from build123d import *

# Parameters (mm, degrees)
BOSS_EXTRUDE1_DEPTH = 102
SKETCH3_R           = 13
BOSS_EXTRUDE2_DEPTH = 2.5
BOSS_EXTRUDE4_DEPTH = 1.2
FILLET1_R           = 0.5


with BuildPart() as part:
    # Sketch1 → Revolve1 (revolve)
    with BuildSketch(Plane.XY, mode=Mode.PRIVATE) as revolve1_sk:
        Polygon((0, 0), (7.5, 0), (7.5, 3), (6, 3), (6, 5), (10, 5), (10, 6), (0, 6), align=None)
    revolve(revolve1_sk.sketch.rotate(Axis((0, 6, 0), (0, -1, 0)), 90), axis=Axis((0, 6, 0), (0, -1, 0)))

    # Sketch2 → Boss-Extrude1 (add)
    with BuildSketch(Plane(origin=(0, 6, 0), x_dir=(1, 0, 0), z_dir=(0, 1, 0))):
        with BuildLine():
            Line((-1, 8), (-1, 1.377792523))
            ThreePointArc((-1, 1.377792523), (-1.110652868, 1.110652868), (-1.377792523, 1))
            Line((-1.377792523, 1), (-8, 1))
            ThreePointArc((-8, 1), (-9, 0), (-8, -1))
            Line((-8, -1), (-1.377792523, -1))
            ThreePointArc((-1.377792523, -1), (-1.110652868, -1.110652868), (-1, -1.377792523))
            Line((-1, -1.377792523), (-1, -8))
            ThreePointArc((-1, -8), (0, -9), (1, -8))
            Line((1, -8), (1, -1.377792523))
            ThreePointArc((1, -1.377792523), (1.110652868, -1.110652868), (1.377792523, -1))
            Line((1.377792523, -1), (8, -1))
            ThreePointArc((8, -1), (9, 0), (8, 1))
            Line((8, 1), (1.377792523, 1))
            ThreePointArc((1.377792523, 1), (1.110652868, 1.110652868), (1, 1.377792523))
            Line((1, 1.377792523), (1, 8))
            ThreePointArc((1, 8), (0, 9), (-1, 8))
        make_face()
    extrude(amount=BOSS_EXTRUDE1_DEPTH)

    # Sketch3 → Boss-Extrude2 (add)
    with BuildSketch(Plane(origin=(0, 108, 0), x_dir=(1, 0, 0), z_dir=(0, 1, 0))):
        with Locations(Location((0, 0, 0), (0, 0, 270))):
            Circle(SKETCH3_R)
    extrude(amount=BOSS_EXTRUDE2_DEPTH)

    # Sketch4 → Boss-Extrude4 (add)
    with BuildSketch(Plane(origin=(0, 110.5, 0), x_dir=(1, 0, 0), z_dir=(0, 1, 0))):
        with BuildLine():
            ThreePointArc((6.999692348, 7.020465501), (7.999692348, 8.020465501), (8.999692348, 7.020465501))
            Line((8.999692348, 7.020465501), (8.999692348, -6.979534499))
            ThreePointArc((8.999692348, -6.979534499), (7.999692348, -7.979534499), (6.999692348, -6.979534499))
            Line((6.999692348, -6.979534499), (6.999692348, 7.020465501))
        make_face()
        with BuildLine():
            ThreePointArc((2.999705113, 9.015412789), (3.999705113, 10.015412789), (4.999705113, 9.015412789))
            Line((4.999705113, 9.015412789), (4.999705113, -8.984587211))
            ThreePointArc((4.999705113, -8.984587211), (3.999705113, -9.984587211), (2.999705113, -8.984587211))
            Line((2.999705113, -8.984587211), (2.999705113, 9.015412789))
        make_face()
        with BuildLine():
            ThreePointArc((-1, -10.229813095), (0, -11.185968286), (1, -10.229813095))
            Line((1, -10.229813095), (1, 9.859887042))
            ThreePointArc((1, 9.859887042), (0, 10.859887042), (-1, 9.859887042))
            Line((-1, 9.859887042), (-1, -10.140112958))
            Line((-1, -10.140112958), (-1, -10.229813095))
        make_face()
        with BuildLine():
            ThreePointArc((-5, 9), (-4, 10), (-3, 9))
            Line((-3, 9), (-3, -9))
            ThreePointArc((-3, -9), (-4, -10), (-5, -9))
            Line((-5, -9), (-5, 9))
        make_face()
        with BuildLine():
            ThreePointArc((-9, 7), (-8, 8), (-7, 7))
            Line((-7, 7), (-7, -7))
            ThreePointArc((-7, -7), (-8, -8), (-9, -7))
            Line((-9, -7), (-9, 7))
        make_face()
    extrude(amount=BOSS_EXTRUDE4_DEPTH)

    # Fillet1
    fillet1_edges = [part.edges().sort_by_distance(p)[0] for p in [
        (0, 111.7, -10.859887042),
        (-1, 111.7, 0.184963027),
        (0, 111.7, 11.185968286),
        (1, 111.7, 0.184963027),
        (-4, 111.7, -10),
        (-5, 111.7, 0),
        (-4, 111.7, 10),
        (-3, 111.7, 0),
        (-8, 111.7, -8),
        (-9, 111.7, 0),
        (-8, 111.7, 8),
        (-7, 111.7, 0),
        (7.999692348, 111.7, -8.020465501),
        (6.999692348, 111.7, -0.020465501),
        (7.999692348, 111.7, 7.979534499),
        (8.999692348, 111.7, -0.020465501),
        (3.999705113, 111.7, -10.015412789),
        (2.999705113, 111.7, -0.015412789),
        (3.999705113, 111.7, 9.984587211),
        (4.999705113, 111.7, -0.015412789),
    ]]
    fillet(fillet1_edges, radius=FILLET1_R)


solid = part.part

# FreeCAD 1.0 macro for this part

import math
import FreeCAD as App
import Part
import Sketcher
from FreeCAD import Vector


def edges_at(feature, points):
    """Names of the edges that pass closest to the given points."""
    edges = feature.Shape.Edges
    near = lambda p: min(range(len(edges)), key=lambda i: edges[i].distToShape(Part.Vertex(*p))[0])
    return sorted({f"Edge{near(p) + 1}" for p in points})

doc = App.newDocument("Part")
body = doc.addObject("PartDesign::Body", "Body")

sketch1 = body.newObject("Sketcher::SketchObject", "Sketch")
sketch1.AttachmentSupport = (doc.getObject("XY_Plane"), [""])
sketch1.MapMode = "FlatFace"
sketch1.addGeometry([
    Part.LineSegment(Vector(0, 0, 0), Vector(7.5, 0, 0)),
    Part.LineSegment(Vector(7.5, 0, 0), Vector(7.5, 3, 0)),
    Part.LineSegment(Vector(7.5, 3, 0), Vector(6, 3, 0)),
    Part.LineSegment(Vector(6, 3, 0), Vector(6, 5, 0)),
    Part.LineSegment(Vector(6, 5, 0), Vector(10, 5, 0)),
    Part.LineSegment(Vector(10, 5, 0), Vector(10, 6, 0)),
    Part.LineSegment(Vector(10, 6, 0), Vector(0, 6, 0)),
    Part.LineSegment(Vector(0, 6, 0), Vector(0, 0, 0)),
], False)
sketch1.addConstraint([
    Sketcher.Constraint("Coincident", 0, 2, 1, 1),
    Sketcher.Constraint("Coincident", 1, 2, 2, 1),
    Sketcher.Constraint("Coincident", 2, 2, 3, 1),
    Sketcher.Constraint("Coincident", 3, 2, 4, 1),
    Sketcher.Constraint("Coincident", 4, 2, 5, 1),
    Sketcher.Constraint("Coincident", 5, 2, 6, 1),
    Sketcher.Constraint("Coincident", 6, 2, 7, 1),
    Sketcher.Constraint("Coincident", 7, 2, 0, 1),
    Sketcher.Constraint("Horizontal", 0),
    Sketcher.Constraint("Vertical", 1),
    Sketcher.Constraint("Horizontal", 2),
    Sketcher.Constraint("Vertical", 3),
    Sketcher.Constraint("Horizontal", 4),
    Sketcher.Constraint("Vertical", 5),
    Sketcher.Constraint("Horizontal", 6),
    Sketcher.Constraint("Vertical", 7),
    Sketcher.Constraint("Coincident", 7, 2, -1, 1),
    Sketcher.Constraint("DistanceX", 4, 1, 4, 2, 4.0),
    Sketcher.Constraint("DistanceX", 6, 2, 6, 1, 10.0),
    Sketcher.Constraint("DistanceY", 1, 1, 1, 2, 3.0),
    Sketcher.Constraint("DistanceY", 3, 1, 3, 2, 2.0),
    Sketcher.Constraint("DistanceY", 5, 1, 5, 2, 1.0),
    Sketcher.Constraint("DistanceX", 0, 1, 0, 2, 7.5),
])
revolution = body.newObject("PartDesign::Revolution", "Revolution")
revolution.Profile = sketch1
revolution.ReferenceAxis = (sketch1, ["V_Axis"])
revolution.Angle = 360

sketch2 = body.newObject("Sketcher::SketchObject", "Sketch001")
sketch2.AttachmentSupport = (doc.getObject("XZ_Plane"), [""])
sketch2.MapMode = "FlatFace"
sketch2.AttachmentOffset = App.Placement(Vector(0, 0, -6), App.Rotation())
sketch2.addGeometry([
    Part.LineSegment(Vector(-1, -8, 0), Vector(-1, -1.377793, 0)),
    Part.ArcOfCircle(Part.Circle(Vector(-1.377793, -1.377793, 0), Vector(0, 0, 1), 0.377793), math.radians(0), math.radians(90)),
    Part.LineSegment(Vector(-1.377793, -1, 0), Vector(-8, -1, 0)),
    Part.ArcOfCircle(Part.Circle(Vector(-8, 0, 0), Vector(0, 0, 1), 1), math.radians(90), math.radians(270)),
    Part.LineSegment(Vector(-8, 1, 0), Vector(-1.377793, 1, 0)),
    Part.ArcOfCircle(Part.Circle(Vector(-1.377793, 1.377793, 0), Vector(0, 0, 1), 0.377793), math.radians(-90), math.radians(0)),
    Part.LineSegment(Vector(-1, 1.377793, 0), Vector(-1, 8, 0)),
    Part.ArcOfCircle(Part.Circle(Vector(0, 8, 0), Vector(0, 0, 1), 1), math.radians(0), math.radians(180)),
    Part.LineSegment(Vector(1, 8, 0), Vector(1, 1.377793, 0)),
    Part.ArcOfCircle(Part.Circle(Vector(1.377793, 1.377793, 0), Vector(0, 0, 1), 0.377793), math.radians(180), math.radians(270)),
    Part.LineSegment(Vector(1.377793, 1, 0), Vector(8, 1, 0)),
    Part.ArcOfCircle(Part.Circle(Vector(8, 0, 0), Vector(0, 0, 1), 1), math.radians(-90), math.radians(90)),
    Part.LineSegment(Vector(8, -1, 0), Vector(1.377793, -1, 0)),
    Part.ArcOfCircle(Part.Circle(Vector(1.377793, -1.377793, 0), Vector(0, 0, 1), 0.377793), math.radians(90), math.radians(180)),
    Part.LineSegment(Vector(1, -1.377793, 0), Vector(1, -8, 0)),
    Part.ArcOfCircle(Part.Circle(Vector(0, -8, 0), Vector(0, 0, 1), 1), math.radians(180), math.radians(360)),
], False)
sketch2.addConstraint([
    Sketcher.Constraint("Tangent", 0, 2, 1, 1),
    Sketcher.Constraint("Tangent", 1, 2, 2, 1),
    Sketcher.Constraint("Tangent", 2, 2, 3, 2),
    Sketcher.Constraint("Tangent", 3, 1, 4, 1),
    Sketcher.Constraint("Tangent", 4, 2, 5, 1),
    Sketcher.Constraint("Tangent", 5, 2, 6, 1),
    Sketcher.Constraint("Tangent", 6, 2, 7, 2),
    Sketcher.Constraint("Tangent", 7, 1, 8, 1),
    Sketcher.Constraint("Tangent", 8, 2, 9, 1),
    Sketcher.Constraint("Tangent", 9, 2, 10, 1),
    Sketcher.Constraint("Tangent", 10, 2, 11, 2),
    Sketcher.Constraint("Tangent", 11, 1, 12, 1),
    Sketcher.Constraint("Tangent", 12, 2, 13, 1),
    Sketcher.Constraint("Tangent", 13, 2, 14, 1),
    Sketcher.Constraint("Tangent", 14, 2, 15, 2),
    Sketcher.Constraint("Tangent", 15, 1, 0, 1),
    Sketcher.Constraint("Vertical", 0),
    Sketcher.Constraint("Horizontal", 2),
    Sketcher.Constraint("Horizontal", 4),
    Sketcher.Constraint("Vertical", 6),
    Sketcher.Constraint("Vertical", 8),
    Sketcher.Constraint("Horizontal", 10),
    Sketcher.Constraint("Horizontal", 12),
    Sketcher.Constraint("Vertical", 14),
    Sketcher.Constraint("Equal", 1, 5),
    Sketcher.Constraint("Equal", 3, 7),
    Sketcher.Constraint("Equal", 5, 9),
    Sketcher.Constraint("Equal", 7, 11),
    Sketcher.Constraint("Equal", 9, 13),
    Sketcher.Constraint("Equal", 11, 15),
    Sketcher.Constraint("Symmetric", 1, 3, 9, 3, -1, 1),
    Sketcher.Constraint("Symmetric", 5, 3, 9, 3, -2),
    Sketcher.Constraint("Equal", 4, 10),
    Sketcher.Constraint("Equal", 12, 0),
    Sketcher.Constraint("Equal", 0, 6),
    Sketcher.Constraint("Radius", 3, 1.0),
    Sketcher.Constraint("DistanceX", 3, 3, -1, 1, 8.0),
    Sketcher.Constraint("Radius", 1, 0.377793),
])
pad1 = body.newObject("PartDesign::Pad", "Pad")
pad1.Profile = sketch2
pad1.Length = 102
pad1.Reversed = True

sketch3 = body.newObject("Sketcher::SketchObject", "Sketch002")
sketch3.AttachmentSupport = (doc.getObject("XZ_Plane"), [""])
sketch3.MapMode = "FlatFace"
sketch3.AttachmentOffset = App.Placement(Vector(0, 0, -108), App.Rotation())
sketch3.addGeometry(Part.Circle(Vector(0, 0, 0), Vector(0, 0, 1), 13), False)
sketch3.addConstraint([
    Sketcher.Constraint("Coincident", 0, 3, -1, 1),
    Sketcher.Constraint("Diameter", 0, 26.0),
])
pad2 = body.newObject("PartDesign::Pad", "Pad001")
pad2.Profile = sketch3
pad2.Length = 2.5
pad2.Reversed = True

sketch4 = body.newObject("Sketcher::SketchObject", "Sketch003")
sketch4.AttachmentSupport = (doc.getObject("XZ_Plane"), [""])
sketch4.MapMode = "FlatFace"
sketch4.AttachmentOffset = App.Placement(Vector(0, 0, -110.5), App.Rotation())
sketch4.addGeometry([
    Part.ArcOfCircle(Part.Circle(Vector(7.999692, -7.020466, 0), Vector(0, 0, 1), 1), math.radians(180), math.radians(360)),
    Part.LineSegment(Vector(6.999692, -7.020466, 0), Vector(6.999692, 6.979534, 0)),
    Part.ArcOfCircle(Part.Circle(Vector(7.999692, 6.979534, 0), Vector(0, 0, 1), 1), math.radians(0), math.radians(180)),
    Part.LineSegment(Vector(8.999692, 6.979534, 0), Vector(8.999692, -7.020466, 0)),
    Part.ArcOfCircle(Part.Circle(Vector(3.999705, -9.015413, 0), Vector(0, 0, 1), 1), math.radians(180), math.radians(360)),
    Part.LineSegment(Vector(2.999705, -9.015413, 0), Vector(2.999705, 8.984587, 0)),
    Part.ArcOfCircle(Part.Circle(Vector(3.999705, 8.984587, 0), Vector(0, 0, 1), 1), math.radians(0), math.radians(180)),
    Part.LineSegment(Vector(4.999705, 8.984587, 0), Vector(4.999705, -9.015413, 0)),
    Part.ArcOfCircle(Part.Circle(Vector(0, 10.184963, 0), Vector(0, 0, 1), 1.001005), math.radians(2.567999), math.radians(177.432001)),
    Part.LineSegment(Vector(1, 10.229813, 0), Vector(1, -9.859887, 0)),
    Part.ArcOfCircle(Part.Circle(Vector(0, -9.859887, 0), Vector(0, 0, 1), 1), math.radians(180), math.radians(360)),
    Part.LineSegment(Vector(-1, -9.859887, 0), Vector(-1, 10.229813, 0)),
    Part.ArcOfCircle(Part.Circle(Vector(-4, -9, 0), Vector(0, 0, 1), 1), math.radians(180), math.radians(360)),
    Part.LineSegment(Vector(-5, -9, 0), Vector(-5, 9, 0)),
    Part.ArcOfCircle(Part.Circle(Vector(-4, 9, 0), Vector(0, 0, 1), 1), math.radians(0), math.radians(180)),
    Part.LineSegment(Vector(-3, 9, 0), Vector(-3, -9, 0)),
    Part.ArcOfCircle(Part.Circle(Vector(-8, -7, 0), Vector(0, 0, 1), 1), math.radians(180), math.radians(360)),
    Part.LineSegment(Vector(-9, -7, 0), Vector(-9, 7, 0)),
    Part.ArcOfCircle(Part.Circle(Vector(-8, 7, 0), Vector(0, 0, 1), 1), math.radians(0), math.radians(180)),
    Part.LineSegment(Vector(-7, 7, 0), Vector(-7, -7, 0)),
], False)
sketch4.addConstraint([
    Sketcher.Constraint("Tangent", 0, 1, 1, 1),
    Sketcher.Constraint("Tangent", 1, 2, 2, 2),
    Sketcher.Constraint("Tangent", 2, 1, 3, 1),
    Sketcher.Constraint("Tangent", 3, 2, 0, 2),
    Sketcher.Constraint("Tangent", 4, 1, 5, 1),
    Sketcher.Constraint("Tangent", 5, 2, 6, 2),
    Sketcher.Constraint("Tangent", 6, 1, 7, 1),
    Sketcher.Constraint("Tangent", 7, 2, 4, 2),
    Sketcher.Constraint("Coincident", 8, 1, 9, 1),
    Sketcher.Constraint("Tangent", 9, 2, 10, 2),
    Sketcher.Constraint("Tangent", 10, 1, 11, 1),
    Sketcher.Constraint("Coincident", 11, 2, 8, 2),
    Sketcher.Constraint("Tangent", 12, 1, 13, 1),
    Sketcher.Constraint("Tangent", 13, 2, 14, 2),
    Sketcher.Constraint("Tangent", 14, 1, 15, 1),
    Sketcher.Constraint("Tangent", 15, 2, 12, 2),
    Sketcher.Constraint("Tangent", 16, 1, 17, 1),
    Sketcher.Constraint("Tangent", 17, 2, 18, 2),
    Sketcher.Constraint("Tangent", 18, 1, 19, 1),
    Sketcher.Constraint("Tangent", 19, 2, 16, 2),
    Sketcher.Constraint("Vertical", 1),
    Sketcher.Constraint("Vertical", 3),
    Sketcher.Constraint("Vertical", 5),
    Sketcher.Constraint("Vertical", 7),
    Sketcher.Constraint("Vertical", 9),
    Sketcher.Constraint("Vertical", 11),
    Sketcher.Constraint("Vertical", 13),
    Sketcher.Constraint("Vertical", 15),
    Sketcher.Constraint("Vertical", 17),
    Sketcher.Constraint("Vertical", 19),
    Sketcher.Constraint("Equal", 2, 4),
    Sketcher.Constraint("Equal", 6, 10),
    Sketcher.Constraint("Equal", 10, 12),
    Sketcher.Constraint("Equal", 14, 16),
    Sketcher.Constraint("Symmetric", 8, 1, 11, 2, -2),
    Sketcher.Constraint("Equal", 7, 13),
    Sketcher.Constraint("Equal", 3, 17),
    Sketcher.Constraint("Radius", 0, 1.0),
    Sketcher.Constraint("DistanceY", 1, 1, 1, 2, 14.0),
    Sketcher.Constraint("DistanceY", 5, 1, 5, 2, 18.0),
    Sketcher.Constraint("DistanceX", 12, 3, -1, 1, 4.0),
    Sketcher.Constraint("DistanceY", 12, 3, -1, 1, 9.0),
    Sketcher.Constraint("DistanceX", 16, 3, -1, 1, 8.0),
    Sketcher.Constraint("DistanceY", 16, 3, -1, 1, 7.0),
    Sketcher.Constraint("DistanceY", 9, 2, 9, 1, 20.0897),
    Sketcher.Constraint("Radius", 8, 1.001005),
    Sketcher.Constraint("DistanceY", 2, 3, 8, 3, 3.205429),
    Sketcher.Constraint("DistanceX", -1, 1, 0, 3, 7.999692),
    Sketcher.Constraint("DistanceY", 0, 3, -1, 1, 7.020466),
    Sketcher.Constraint("DistanceX", -1, 1, 4, 3, 3.999705),
    Sketcher.Constraint("DistanceY", 4, 3, -1, 1, 9.015413),
])
pad3 = body.newObject("PartDesign::Pad", "Pad002")
pad3.Profile = sketch4
pad3.Length = 1.2
pad3.Reversed = True
doc.recompute()

fillet = body.newObject("PartDesign::Fillet", "Fillet")
fillet.Base = (pad3, edges_at(pad3, [
    (0, 111.7, -10.86),
    (-1, 111.7, 0.185),
    (0, 111.7, 11.186),
    (1, 111.7, 0.185),
    (-4, 111.7, -10),
    (-5, 111.7, 0),
    (-4, 111.7, 10),
    (-3, 111.7, 0),
    (-8, 111.7, -8),
    (-9, 111.7, 0),
    (-8, 111.7, 8),
    (-7, 111.7, 0),
    (8, 111.7, -8.02),
    (7, 111.7, -0.02),
    (8, 111.7, 7.98),
    (9, 111.7, -0.02),
    (4, 111.7, -10.015),
    (3, 111.7, -0.015),
    (4, 111.7, 9.985),
    (5, 111.7, -0.015),
]))
fillet.Radius = 0.5

doc.recompute()
